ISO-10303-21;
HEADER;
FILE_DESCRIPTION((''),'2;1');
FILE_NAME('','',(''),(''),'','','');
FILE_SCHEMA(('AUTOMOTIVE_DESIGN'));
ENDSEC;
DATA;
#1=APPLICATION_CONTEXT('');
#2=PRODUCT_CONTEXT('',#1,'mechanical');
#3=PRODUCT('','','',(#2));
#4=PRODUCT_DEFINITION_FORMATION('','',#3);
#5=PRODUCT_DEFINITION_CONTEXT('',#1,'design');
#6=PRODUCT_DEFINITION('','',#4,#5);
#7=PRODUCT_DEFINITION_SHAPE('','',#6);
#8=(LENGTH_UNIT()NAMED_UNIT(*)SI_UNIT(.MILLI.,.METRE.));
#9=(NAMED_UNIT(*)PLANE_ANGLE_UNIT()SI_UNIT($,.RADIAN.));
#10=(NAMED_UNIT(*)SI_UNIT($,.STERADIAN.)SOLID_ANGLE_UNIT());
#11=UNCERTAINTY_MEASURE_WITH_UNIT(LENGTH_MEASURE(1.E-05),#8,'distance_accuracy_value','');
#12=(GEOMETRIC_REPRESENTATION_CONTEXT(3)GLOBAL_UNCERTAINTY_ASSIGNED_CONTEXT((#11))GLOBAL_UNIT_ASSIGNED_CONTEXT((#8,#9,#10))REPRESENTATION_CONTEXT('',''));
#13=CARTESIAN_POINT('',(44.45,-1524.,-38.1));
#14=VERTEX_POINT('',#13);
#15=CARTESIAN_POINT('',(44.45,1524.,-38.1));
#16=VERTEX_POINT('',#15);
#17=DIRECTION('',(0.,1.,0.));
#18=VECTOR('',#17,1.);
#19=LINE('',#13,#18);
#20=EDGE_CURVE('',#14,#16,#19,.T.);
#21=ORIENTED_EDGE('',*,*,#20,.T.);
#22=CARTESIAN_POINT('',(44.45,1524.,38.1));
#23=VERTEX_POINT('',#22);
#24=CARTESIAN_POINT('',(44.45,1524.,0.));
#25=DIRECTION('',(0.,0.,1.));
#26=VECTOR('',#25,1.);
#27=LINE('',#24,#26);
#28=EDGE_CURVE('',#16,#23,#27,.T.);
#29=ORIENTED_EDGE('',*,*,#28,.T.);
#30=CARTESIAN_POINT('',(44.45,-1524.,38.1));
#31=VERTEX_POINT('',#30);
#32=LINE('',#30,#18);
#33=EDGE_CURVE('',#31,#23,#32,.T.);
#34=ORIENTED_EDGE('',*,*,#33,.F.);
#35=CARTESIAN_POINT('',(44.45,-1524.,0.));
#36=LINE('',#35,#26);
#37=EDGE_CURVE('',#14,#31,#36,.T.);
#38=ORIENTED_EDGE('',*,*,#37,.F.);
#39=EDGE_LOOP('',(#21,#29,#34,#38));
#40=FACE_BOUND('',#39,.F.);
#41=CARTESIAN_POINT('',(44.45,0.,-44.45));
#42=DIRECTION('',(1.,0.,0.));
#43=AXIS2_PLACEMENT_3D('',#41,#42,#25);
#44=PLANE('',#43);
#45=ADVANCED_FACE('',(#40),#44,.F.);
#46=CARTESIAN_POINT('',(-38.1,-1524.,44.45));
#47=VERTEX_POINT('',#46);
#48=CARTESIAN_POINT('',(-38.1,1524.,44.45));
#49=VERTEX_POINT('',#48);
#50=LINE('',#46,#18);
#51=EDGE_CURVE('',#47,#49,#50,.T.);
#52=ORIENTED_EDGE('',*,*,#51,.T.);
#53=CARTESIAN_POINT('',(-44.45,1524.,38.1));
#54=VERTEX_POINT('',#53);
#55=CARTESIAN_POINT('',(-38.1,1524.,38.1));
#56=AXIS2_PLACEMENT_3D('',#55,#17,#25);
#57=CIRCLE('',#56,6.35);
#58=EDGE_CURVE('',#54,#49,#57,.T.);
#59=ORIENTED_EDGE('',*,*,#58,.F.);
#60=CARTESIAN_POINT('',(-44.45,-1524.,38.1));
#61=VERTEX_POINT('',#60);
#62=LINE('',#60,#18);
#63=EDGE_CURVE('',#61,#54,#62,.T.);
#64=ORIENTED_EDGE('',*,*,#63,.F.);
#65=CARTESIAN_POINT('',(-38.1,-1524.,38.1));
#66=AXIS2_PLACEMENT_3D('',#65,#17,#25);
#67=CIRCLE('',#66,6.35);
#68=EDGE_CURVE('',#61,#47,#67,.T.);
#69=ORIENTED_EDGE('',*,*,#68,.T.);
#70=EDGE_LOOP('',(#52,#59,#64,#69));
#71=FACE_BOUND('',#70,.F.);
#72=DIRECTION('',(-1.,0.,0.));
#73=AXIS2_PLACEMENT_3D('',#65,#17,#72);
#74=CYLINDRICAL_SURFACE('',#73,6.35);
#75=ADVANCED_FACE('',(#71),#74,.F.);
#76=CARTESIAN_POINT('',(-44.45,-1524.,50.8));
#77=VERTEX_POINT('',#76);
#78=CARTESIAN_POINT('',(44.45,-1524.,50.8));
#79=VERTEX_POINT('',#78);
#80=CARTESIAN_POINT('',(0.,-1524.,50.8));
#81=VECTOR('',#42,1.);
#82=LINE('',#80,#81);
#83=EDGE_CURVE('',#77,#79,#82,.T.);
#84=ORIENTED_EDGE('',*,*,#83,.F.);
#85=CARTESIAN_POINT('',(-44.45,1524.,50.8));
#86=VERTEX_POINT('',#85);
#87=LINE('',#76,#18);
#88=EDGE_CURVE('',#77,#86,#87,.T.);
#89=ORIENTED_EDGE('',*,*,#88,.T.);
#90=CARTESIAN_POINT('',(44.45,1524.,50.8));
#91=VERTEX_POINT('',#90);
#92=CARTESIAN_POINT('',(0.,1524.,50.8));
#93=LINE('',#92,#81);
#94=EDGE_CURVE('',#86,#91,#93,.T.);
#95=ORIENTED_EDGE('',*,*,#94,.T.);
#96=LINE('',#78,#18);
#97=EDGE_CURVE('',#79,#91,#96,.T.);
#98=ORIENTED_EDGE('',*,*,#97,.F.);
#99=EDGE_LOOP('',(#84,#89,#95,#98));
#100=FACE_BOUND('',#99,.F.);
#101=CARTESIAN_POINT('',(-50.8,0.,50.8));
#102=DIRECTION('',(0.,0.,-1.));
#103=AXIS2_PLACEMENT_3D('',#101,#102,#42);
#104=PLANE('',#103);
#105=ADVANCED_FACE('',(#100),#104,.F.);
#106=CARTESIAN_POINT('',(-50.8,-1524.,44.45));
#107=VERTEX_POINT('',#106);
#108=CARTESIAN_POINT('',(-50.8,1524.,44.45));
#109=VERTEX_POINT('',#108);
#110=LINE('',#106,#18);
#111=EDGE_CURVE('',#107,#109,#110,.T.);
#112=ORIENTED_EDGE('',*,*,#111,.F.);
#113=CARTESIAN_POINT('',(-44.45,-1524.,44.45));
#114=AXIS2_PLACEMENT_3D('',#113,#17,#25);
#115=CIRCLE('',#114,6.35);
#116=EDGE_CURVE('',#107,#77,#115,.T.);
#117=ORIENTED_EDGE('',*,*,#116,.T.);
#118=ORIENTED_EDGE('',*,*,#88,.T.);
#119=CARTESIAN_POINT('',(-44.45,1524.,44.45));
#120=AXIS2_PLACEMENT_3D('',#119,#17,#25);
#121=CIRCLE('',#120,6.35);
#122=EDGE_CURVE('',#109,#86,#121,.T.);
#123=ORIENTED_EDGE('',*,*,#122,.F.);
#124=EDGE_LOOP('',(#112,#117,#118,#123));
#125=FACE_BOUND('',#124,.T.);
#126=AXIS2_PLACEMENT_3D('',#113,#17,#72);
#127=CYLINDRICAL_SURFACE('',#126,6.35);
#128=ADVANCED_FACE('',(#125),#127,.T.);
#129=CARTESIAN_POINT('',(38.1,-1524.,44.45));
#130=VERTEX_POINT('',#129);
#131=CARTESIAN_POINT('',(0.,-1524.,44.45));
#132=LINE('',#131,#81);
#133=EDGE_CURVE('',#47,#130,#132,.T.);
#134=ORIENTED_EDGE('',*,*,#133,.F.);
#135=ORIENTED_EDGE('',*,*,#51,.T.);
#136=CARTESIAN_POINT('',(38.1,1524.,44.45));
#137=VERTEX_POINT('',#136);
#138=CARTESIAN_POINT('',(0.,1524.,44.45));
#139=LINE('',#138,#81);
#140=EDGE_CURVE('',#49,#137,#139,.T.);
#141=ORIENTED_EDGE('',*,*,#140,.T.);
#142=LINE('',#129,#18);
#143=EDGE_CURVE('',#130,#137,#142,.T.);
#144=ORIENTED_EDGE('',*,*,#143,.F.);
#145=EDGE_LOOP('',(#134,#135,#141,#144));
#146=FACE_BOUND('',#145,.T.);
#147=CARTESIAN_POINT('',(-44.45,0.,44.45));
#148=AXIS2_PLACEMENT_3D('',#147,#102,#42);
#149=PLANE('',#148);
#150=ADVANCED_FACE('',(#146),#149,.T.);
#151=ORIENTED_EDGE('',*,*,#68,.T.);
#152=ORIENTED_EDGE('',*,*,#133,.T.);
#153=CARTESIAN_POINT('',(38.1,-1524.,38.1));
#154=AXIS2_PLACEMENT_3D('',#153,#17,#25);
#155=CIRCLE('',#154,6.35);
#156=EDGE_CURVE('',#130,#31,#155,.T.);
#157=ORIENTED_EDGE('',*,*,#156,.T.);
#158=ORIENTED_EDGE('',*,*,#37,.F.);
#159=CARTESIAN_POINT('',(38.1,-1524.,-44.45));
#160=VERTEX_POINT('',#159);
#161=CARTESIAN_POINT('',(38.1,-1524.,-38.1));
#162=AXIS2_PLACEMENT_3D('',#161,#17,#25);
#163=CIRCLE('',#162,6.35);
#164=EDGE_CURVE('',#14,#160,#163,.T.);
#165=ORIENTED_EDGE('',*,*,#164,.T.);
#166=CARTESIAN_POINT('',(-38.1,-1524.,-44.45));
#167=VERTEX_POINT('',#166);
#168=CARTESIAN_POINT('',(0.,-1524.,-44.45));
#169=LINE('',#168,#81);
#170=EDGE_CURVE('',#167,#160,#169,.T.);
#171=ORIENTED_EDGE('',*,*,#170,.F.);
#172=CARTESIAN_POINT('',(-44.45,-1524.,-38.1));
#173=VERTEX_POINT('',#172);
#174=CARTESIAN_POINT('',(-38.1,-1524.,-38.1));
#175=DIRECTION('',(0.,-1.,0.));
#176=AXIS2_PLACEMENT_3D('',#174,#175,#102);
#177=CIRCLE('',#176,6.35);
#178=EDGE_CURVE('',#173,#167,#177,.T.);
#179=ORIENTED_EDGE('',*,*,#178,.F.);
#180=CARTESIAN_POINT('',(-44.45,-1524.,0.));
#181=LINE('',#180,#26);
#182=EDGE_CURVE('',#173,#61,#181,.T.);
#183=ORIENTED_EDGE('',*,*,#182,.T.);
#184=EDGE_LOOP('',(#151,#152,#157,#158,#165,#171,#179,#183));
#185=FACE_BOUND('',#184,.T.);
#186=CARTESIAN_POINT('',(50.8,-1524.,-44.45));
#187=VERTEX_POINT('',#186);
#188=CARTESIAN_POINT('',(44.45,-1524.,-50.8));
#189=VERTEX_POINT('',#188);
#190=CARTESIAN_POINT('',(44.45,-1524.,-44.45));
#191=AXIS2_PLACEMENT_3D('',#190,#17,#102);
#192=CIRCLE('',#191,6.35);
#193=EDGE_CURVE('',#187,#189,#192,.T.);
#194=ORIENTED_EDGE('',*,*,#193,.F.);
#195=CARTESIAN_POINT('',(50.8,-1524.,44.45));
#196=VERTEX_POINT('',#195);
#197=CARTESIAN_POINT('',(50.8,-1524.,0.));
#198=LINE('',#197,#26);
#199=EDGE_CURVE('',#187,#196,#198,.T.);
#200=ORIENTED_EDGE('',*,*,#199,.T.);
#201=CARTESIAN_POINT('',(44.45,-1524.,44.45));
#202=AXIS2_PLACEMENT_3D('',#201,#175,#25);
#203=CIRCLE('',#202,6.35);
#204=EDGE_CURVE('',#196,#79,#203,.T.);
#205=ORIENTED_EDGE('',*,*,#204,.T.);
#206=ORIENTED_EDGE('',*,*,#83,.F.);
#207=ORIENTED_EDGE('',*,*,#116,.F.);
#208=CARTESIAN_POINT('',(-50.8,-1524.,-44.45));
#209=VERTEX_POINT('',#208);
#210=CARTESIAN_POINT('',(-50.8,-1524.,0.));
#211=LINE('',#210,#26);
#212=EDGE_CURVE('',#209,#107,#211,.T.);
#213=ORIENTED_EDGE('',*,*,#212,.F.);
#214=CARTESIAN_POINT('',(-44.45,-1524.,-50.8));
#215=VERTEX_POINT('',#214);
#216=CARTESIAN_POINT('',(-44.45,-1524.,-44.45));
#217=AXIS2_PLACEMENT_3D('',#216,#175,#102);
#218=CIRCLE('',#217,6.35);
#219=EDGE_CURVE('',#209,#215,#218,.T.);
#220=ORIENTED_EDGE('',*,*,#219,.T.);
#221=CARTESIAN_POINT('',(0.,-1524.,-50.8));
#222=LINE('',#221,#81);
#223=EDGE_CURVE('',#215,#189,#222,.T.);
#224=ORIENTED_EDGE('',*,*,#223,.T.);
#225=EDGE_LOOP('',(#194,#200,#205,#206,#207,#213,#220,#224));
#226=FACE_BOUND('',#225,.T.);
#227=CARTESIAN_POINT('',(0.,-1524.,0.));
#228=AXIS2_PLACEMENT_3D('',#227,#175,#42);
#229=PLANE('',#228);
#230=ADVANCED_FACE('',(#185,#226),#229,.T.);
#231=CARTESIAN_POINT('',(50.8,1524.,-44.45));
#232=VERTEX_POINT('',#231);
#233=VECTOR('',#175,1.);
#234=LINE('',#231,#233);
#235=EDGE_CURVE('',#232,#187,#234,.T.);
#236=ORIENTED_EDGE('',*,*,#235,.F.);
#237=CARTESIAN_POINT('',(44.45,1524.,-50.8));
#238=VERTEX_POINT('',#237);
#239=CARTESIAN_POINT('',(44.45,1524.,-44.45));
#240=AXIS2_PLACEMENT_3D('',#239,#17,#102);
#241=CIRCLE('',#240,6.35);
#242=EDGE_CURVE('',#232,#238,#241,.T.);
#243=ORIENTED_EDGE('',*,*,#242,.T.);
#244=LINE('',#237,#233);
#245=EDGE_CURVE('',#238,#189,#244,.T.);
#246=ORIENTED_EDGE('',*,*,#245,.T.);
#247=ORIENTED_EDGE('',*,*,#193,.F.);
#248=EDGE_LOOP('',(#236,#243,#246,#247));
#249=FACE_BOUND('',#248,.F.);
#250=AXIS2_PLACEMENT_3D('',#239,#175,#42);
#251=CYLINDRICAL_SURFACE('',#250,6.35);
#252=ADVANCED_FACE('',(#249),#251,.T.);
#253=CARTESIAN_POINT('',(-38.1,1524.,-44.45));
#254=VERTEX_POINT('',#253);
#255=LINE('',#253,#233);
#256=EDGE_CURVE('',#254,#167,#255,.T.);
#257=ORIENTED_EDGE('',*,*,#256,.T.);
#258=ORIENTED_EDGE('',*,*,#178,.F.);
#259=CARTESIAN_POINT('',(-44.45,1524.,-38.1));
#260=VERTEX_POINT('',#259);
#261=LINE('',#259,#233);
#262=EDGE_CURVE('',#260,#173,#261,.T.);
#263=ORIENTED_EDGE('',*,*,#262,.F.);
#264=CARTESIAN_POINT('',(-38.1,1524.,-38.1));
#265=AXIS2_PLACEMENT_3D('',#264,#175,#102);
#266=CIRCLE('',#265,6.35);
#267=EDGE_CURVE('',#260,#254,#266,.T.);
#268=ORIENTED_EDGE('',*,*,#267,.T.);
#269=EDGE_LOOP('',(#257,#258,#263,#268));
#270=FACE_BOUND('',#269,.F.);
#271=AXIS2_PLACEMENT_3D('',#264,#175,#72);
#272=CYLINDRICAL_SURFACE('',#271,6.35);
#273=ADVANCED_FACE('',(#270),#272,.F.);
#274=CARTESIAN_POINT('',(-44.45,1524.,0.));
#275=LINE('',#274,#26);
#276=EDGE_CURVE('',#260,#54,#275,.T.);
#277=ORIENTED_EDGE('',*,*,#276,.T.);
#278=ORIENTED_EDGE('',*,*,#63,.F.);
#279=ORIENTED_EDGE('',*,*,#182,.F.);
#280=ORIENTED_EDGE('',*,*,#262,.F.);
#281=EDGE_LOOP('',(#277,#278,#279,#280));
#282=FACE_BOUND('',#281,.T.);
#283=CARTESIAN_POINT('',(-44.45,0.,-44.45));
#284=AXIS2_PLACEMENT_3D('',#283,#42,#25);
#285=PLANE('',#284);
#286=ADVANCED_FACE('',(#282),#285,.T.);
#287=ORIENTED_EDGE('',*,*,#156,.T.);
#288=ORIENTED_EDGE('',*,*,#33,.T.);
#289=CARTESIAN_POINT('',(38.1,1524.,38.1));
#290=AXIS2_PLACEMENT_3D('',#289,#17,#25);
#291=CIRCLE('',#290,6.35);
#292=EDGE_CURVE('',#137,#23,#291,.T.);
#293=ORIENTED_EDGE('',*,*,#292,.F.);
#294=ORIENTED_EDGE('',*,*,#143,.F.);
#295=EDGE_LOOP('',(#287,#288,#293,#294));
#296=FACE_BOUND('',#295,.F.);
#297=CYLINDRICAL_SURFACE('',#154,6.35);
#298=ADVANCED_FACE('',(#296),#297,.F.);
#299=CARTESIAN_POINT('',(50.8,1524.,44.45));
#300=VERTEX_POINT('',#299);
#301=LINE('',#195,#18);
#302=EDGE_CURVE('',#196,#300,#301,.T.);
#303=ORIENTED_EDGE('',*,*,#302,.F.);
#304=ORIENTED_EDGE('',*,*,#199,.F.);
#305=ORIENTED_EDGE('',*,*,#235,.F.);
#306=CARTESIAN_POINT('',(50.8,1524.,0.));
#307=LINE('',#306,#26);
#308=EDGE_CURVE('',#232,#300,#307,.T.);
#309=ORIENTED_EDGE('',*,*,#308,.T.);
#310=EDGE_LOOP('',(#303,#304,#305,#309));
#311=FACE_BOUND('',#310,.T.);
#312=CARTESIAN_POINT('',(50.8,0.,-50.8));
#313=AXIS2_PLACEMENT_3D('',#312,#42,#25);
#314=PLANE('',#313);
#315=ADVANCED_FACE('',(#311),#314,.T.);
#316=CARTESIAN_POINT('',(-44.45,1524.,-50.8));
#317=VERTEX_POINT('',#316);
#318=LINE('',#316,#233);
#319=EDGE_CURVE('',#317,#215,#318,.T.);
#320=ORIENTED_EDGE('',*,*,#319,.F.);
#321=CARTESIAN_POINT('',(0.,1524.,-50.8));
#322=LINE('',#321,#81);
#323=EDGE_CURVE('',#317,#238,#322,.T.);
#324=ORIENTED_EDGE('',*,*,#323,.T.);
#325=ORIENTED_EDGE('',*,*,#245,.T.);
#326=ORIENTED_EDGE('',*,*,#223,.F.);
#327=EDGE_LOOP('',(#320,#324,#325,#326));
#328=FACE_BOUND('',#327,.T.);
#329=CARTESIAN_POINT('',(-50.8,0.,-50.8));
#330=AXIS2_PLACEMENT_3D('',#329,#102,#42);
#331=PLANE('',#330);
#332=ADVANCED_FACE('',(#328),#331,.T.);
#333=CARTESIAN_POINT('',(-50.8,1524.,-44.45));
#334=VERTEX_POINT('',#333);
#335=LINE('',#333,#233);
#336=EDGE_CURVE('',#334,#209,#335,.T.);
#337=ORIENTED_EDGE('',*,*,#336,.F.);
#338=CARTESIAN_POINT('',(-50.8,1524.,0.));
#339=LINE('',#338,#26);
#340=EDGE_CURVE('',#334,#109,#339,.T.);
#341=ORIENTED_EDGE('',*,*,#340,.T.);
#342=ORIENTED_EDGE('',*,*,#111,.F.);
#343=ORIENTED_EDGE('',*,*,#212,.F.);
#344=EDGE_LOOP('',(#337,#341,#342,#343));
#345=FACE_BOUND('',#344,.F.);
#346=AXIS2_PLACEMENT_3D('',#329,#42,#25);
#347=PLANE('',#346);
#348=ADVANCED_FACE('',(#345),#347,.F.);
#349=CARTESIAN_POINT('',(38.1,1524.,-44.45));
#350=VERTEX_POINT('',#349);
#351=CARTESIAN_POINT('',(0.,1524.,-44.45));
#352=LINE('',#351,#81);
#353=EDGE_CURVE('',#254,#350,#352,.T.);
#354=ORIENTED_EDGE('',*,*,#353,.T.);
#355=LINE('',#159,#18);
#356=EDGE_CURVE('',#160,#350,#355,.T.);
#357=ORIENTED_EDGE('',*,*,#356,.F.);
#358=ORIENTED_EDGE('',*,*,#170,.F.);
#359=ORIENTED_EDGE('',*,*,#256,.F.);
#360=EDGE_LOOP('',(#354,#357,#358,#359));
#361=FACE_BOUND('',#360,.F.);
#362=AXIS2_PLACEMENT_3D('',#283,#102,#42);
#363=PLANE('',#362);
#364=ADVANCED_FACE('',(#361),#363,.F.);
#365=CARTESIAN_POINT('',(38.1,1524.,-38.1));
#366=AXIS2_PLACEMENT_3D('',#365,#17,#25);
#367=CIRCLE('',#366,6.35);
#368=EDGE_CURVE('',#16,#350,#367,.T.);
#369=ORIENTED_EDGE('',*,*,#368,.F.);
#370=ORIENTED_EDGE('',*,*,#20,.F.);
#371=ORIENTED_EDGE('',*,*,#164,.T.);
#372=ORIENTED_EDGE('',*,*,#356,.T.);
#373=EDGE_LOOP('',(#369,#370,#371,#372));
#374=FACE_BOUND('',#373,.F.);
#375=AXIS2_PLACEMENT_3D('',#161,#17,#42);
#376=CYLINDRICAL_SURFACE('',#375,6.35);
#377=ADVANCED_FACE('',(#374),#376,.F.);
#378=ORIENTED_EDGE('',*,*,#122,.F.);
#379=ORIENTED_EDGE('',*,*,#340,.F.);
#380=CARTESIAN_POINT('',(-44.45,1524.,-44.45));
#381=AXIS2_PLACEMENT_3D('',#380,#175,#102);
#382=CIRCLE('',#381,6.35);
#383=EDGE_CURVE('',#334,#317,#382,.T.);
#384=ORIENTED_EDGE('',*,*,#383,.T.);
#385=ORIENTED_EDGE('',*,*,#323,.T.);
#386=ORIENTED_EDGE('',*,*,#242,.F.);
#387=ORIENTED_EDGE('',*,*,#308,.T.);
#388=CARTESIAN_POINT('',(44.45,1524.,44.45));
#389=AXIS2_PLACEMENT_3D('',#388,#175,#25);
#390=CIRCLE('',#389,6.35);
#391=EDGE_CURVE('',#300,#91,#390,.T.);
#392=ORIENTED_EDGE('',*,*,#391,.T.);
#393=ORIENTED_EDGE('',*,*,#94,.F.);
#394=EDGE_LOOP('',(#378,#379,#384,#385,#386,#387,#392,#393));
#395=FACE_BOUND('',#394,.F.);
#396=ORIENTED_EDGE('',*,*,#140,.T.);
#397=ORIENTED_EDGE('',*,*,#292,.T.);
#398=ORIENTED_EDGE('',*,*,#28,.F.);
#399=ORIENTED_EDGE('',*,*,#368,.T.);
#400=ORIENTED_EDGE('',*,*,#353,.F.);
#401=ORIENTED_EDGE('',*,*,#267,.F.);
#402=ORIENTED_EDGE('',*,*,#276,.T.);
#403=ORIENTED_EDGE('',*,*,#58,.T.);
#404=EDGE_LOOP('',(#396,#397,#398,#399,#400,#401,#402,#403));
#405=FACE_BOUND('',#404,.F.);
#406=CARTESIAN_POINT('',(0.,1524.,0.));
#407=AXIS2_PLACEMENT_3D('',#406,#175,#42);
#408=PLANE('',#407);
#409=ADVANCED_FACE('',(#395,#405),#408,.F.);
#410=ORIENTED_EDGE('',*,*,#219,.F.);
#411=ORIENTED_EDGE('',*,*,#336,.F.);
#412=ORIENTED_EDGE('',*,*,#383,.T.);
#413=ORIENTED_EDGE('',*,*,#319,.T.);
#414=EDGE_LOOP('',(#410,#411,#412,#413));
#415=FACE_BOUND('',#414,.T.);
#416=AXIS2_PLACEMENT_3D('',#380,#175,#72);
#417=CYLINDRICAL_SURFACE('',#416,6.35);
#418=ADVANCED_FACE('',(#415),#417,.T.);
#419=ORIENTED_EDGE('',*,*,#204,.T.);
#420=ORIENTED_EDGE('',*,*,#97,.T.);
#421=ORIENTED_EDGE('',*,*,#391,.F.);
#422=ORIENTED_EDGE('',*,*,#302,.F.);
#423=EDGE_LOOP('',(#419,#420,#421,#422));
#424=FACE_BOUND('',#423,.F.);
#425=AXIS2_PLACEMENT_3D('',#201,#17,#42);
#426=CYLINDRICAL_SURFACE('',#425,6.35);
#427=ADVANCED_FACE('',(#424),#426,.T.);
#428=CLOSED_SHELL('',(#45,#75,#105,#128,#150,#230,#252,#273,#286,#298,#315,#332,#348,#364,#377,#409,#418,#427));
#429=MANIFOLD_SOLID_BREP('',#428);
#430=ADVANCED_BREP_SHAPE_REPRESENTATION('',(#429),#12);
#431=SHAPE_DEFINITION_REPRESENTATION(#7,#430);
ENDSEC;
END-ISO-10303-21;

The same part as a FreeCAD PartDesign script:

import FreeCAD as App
import Part
import Sketcher

V = App.Vector
Q = App.Units.Quantity


def edges_at(feature, points):
    """Names of the edges that pass closest to the given points."""
    edges = feature.Shape.Edges
    near = lambda p: min(range(len(edges)), key=lambda i: edges[i].distToShape(Part.Vertex(*p))[0])
    return sorted({f"Edge{near(p) + 1}" for p in points})

doc = App.newDocument("Part")
params = doc.addObject("Spreadsheet::Sheet", "Params")
for row, (alias, value) in enumerate([
    ("sketch1_width", "4 in"),
    ("sketch1_width2", "3.5 in"),
    ("pad1_length", "120 in"),
    ("fillet_radius", "0.25 in"),
], start=1):
    params.set(f"A{row}", alias)
    params.set(f"B{row}", "=" + value)
    params.setAlias(f"B{row}", alias)

body = doc.addObject("PartDesign::Body", "Body")

# Sketch on XZ plane
sketch1 = body.newObject("Sketcher::SketchObject", "Sketch")
sketch1.AttachmentSupport = (doc.getObject("XZ_Plane"), [""])
sketch1.MapMode = "FlatFace"
sketch1.addGeometry([
    Part.LineSegment(V(-51, 51, 0), V(-51, -51, 0)),  # 0
    Part.LineSegment(V(-51, -51, 0), V(51, -51, 0)),  # 1
    Part.LineSegment(V(51, -51, 0), V(51, 51, 0)),  # 2
    Part.LineSegment(V(51, 51, 0), V(-51, 51, 0)),  # 3
    Part.LineSegment(V(44, -44, 0), V(-44, -44, 0)),  # 4
    Part.LineSegment(V(-44, -44, 0), V(-44, 44, 0)),  # 5
    Part.LineSegment(V(-44, 44, 0), V(44, 44, 0)),  # 6
    Part.LineSegment(V(44, 44, 0), V(44, -44, 0)),  # 7
], False)
sketch1.addConstraint([
    Sketcher.Constraint("Coincident", 0, 2, 1, 1),
    Sketcher.Constraint("Coincident", 1, 2, 2, 1),
    Sketcher.Constraint("Coincident", 2, 2, 3, 1),
    Sketcher.Constraint("Coincident", 3, 2, 0, 1),
    Sketcher.Constraint("Coincident", 4, 2, 5, 1),
    Sketcher.Constraint("Coincident", 5, 2, 6, 1),
    Sketcher.Constraint("Coincident", 6, 2, 7, 1),
    Sketcher.Constraint("Coincident", 7, 2, 4, 1),
    Sketcher.Constraint("Vertical", 0),
    Sketcher.Constraint("Horizontal", 1),
    Sketcher.Constraint("Vertical", 2),
    Sketcher.Constraint("Horizontal", 3),
    Sketcher.Constraint("Horizontal", 4),
    Sketcher.Constraint("Vertical", 5),
    Sketcher.Constraint("Horizontal", 6),
    Sketcher.Constraint("Vertical", 7),
    Sketcher.Constraint("Symmetric", 0, 2, 2, 2, -1, 1),
    Sketcher.Constraint("Symmetric", 4, 2, 6, 2, -1, 1),
    Sketcher.Constraint("Equal", 3, 0),
    Sketcher.Constraint("Equal", 6, 5),
    Sketcher.Constraint("DistanceX", 1, 1, 1, 2, Q("4 in")),
    Sketcher.Constraint("DistanceX", 4, 2, 4, 1, Q("3.5 in")),
])
sketch1.setExpression("Constraints[20]", "Params.sketch1_width")
sketch1.setExpression("Constraints[21]", "Params.sketch1_width2")
pad1 = body.newObject("PartDesign::Pad", "Pad")
pad1.Profile = sketch1
pad1.setExpression("Length", "Params.pad1_length")
pad1.Midplane = True
doc.recompute()

fillet = body.newObject("PartDesign::Fillet", "Fillet")
fillet.Base = (pad1, edges_at(pad1, [
    (-50.8, 0, 50.8),
    (-50.8, 0, -50.8),
    (50.8, 0, 50.8),
    (50.8, 0, -50.8),
    (-44.45, 0, -44.45),
    (-44.45, 0, 44.45),
    (44.45, 0, -44.45),
    (44.45, 0, 44.45),
]))
fillet.setExpression("Radius", "Params.fillet_radius")

doc.recompute()
